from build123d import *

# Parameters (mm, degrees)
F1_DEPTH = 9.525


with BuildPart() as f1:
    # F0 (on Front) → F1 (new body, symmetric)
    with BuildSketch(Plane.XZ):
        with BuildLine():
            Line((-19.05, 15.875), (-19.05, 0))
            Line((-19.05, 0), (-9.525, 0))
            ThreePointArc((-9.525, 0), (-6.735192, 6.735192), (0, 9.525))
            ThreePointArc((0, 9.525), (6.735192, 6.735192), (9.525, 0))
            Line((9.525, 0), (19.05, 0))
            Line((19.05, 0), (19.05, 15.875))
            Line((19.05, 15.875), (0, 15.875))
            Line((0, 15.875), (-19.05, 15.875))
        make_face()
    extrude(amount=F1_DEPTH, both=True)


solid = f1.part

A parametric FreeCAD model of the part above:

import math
import FreeCAD as App
import Part
import Sketcher

V = App.Vector
Q = App.Units.Quantity

doc = App.newDocument("Part")
body = doc.addObject("PartDesign::Body", "Body")

sketch1 = body.newObject("Sketcher::SketchObject", "Sketch")
sketch1.AttachmentSupport = (doc.getObject("XZ_Plane"), [""])
sketch1.MapMode = "FlatFace"
sketch1.addGeometry(Part.LineSegment(V(-19, 16, 0), V(-19, 0, 0)), False)
sketch1.addGeometry(Part.LineSegment(V(-19, 0, 0), V(-10, 0, 0)), False)
sketch1.addGeometry(Part.ArcOfCircle(Part.Circle(V(0, 0, 0), V(0, 0, 1), 10), math.radians(90), math.radians(180)), False)
sketch1.addGeometry(Part.ArcOfCircle(Part.Circle(V(0, 0, 0), V(0, 0, 1), 10), math.radians(0), math.radians(90)), False)
sketch1.addGeometry(Part.LineSegment(V(10, 0, 0), V(19, 0, 0)), False)
sketch1.addGeometry(Part.LineSegment(V(19, 0, 0), V(19, 16, 0)), False)
sketch1.addGeometry(Part.LineSegment(V(19, 16, 0), V(-19, 16, 0)), False)
sketch1.addConstraint(Sketcher.Constraint("Coincident", 0, 2, 1, 1))
sketch1.addConstraint(Sketcher.Constraint("Coincident", 1, 2, 2, 2))
sketch1.addConstraint(Sketcher.Constraint("Tangent", 2, 1, 3, 2))
sketch1.addConstraint(Sketcher.Constraint("Coincident", 3, 1, 4, 1))
sketch1.addConstraint(Sketcher.Constraint("Coincident", 4, 2, 5, 1))
sketch1.addConstraint(Sketcher.Constraint("Coincident", 5, 2, 6, 1))
sketch1.addConstraint(Sketcher.Constraint("Coincident", 6, 2, 0, 1))
sketch1.addConstraint(Sketcher.Constraint("Vertical", 0))
sketch1.addConstraint(Sketcher.Constraint("Horizontal", 1))
sketch1.addConstraint(Sketcher.Constraint("Horizontal", 4))
sketch1.addConstraint(Sketcher.Constraint("Vertical", 5))
sketch1.addConstraint(Sketcher.Constraint("Horizontal", 6))
sketch1.addConstraint(Sketcher.Constraint("Coincident", 2, 3, -1, 1))
sketch1.addConstraint(Sketcher.Constraint("Equal", 2, 3))
sketch1.addConstraint(Sketcher.Constraint("Symmetric", 0, 2, 4, 2, -1, 1))
sketch1.addConstraint(Sketcher.Constraint("PointOnObject", 0, 2, -1))
sketch1.addConstraint(Sketcher.Constraint("PointOnObject", 2, 1, -2))
sketch1.addConstraint(Sketcher.Constraint("DistanceX", 6, 2, 6, 1, Q("1.5 in")))
sketch1.addConstraint(Sketcher.Constraint("Radius", 2, Q("0.375 in")))
sketch1.addConstraint(Sketcher.Constraint("DistanceY", 0, 2, 0, 1, Q("0.625 in")))
pad1 = body.newObject("PartDesign::Pad", "Pad")
pad1.Profile = sketch1
pad1.Length = Q("0.75 in")
pad1.Midplane = True

doc.recompute()
